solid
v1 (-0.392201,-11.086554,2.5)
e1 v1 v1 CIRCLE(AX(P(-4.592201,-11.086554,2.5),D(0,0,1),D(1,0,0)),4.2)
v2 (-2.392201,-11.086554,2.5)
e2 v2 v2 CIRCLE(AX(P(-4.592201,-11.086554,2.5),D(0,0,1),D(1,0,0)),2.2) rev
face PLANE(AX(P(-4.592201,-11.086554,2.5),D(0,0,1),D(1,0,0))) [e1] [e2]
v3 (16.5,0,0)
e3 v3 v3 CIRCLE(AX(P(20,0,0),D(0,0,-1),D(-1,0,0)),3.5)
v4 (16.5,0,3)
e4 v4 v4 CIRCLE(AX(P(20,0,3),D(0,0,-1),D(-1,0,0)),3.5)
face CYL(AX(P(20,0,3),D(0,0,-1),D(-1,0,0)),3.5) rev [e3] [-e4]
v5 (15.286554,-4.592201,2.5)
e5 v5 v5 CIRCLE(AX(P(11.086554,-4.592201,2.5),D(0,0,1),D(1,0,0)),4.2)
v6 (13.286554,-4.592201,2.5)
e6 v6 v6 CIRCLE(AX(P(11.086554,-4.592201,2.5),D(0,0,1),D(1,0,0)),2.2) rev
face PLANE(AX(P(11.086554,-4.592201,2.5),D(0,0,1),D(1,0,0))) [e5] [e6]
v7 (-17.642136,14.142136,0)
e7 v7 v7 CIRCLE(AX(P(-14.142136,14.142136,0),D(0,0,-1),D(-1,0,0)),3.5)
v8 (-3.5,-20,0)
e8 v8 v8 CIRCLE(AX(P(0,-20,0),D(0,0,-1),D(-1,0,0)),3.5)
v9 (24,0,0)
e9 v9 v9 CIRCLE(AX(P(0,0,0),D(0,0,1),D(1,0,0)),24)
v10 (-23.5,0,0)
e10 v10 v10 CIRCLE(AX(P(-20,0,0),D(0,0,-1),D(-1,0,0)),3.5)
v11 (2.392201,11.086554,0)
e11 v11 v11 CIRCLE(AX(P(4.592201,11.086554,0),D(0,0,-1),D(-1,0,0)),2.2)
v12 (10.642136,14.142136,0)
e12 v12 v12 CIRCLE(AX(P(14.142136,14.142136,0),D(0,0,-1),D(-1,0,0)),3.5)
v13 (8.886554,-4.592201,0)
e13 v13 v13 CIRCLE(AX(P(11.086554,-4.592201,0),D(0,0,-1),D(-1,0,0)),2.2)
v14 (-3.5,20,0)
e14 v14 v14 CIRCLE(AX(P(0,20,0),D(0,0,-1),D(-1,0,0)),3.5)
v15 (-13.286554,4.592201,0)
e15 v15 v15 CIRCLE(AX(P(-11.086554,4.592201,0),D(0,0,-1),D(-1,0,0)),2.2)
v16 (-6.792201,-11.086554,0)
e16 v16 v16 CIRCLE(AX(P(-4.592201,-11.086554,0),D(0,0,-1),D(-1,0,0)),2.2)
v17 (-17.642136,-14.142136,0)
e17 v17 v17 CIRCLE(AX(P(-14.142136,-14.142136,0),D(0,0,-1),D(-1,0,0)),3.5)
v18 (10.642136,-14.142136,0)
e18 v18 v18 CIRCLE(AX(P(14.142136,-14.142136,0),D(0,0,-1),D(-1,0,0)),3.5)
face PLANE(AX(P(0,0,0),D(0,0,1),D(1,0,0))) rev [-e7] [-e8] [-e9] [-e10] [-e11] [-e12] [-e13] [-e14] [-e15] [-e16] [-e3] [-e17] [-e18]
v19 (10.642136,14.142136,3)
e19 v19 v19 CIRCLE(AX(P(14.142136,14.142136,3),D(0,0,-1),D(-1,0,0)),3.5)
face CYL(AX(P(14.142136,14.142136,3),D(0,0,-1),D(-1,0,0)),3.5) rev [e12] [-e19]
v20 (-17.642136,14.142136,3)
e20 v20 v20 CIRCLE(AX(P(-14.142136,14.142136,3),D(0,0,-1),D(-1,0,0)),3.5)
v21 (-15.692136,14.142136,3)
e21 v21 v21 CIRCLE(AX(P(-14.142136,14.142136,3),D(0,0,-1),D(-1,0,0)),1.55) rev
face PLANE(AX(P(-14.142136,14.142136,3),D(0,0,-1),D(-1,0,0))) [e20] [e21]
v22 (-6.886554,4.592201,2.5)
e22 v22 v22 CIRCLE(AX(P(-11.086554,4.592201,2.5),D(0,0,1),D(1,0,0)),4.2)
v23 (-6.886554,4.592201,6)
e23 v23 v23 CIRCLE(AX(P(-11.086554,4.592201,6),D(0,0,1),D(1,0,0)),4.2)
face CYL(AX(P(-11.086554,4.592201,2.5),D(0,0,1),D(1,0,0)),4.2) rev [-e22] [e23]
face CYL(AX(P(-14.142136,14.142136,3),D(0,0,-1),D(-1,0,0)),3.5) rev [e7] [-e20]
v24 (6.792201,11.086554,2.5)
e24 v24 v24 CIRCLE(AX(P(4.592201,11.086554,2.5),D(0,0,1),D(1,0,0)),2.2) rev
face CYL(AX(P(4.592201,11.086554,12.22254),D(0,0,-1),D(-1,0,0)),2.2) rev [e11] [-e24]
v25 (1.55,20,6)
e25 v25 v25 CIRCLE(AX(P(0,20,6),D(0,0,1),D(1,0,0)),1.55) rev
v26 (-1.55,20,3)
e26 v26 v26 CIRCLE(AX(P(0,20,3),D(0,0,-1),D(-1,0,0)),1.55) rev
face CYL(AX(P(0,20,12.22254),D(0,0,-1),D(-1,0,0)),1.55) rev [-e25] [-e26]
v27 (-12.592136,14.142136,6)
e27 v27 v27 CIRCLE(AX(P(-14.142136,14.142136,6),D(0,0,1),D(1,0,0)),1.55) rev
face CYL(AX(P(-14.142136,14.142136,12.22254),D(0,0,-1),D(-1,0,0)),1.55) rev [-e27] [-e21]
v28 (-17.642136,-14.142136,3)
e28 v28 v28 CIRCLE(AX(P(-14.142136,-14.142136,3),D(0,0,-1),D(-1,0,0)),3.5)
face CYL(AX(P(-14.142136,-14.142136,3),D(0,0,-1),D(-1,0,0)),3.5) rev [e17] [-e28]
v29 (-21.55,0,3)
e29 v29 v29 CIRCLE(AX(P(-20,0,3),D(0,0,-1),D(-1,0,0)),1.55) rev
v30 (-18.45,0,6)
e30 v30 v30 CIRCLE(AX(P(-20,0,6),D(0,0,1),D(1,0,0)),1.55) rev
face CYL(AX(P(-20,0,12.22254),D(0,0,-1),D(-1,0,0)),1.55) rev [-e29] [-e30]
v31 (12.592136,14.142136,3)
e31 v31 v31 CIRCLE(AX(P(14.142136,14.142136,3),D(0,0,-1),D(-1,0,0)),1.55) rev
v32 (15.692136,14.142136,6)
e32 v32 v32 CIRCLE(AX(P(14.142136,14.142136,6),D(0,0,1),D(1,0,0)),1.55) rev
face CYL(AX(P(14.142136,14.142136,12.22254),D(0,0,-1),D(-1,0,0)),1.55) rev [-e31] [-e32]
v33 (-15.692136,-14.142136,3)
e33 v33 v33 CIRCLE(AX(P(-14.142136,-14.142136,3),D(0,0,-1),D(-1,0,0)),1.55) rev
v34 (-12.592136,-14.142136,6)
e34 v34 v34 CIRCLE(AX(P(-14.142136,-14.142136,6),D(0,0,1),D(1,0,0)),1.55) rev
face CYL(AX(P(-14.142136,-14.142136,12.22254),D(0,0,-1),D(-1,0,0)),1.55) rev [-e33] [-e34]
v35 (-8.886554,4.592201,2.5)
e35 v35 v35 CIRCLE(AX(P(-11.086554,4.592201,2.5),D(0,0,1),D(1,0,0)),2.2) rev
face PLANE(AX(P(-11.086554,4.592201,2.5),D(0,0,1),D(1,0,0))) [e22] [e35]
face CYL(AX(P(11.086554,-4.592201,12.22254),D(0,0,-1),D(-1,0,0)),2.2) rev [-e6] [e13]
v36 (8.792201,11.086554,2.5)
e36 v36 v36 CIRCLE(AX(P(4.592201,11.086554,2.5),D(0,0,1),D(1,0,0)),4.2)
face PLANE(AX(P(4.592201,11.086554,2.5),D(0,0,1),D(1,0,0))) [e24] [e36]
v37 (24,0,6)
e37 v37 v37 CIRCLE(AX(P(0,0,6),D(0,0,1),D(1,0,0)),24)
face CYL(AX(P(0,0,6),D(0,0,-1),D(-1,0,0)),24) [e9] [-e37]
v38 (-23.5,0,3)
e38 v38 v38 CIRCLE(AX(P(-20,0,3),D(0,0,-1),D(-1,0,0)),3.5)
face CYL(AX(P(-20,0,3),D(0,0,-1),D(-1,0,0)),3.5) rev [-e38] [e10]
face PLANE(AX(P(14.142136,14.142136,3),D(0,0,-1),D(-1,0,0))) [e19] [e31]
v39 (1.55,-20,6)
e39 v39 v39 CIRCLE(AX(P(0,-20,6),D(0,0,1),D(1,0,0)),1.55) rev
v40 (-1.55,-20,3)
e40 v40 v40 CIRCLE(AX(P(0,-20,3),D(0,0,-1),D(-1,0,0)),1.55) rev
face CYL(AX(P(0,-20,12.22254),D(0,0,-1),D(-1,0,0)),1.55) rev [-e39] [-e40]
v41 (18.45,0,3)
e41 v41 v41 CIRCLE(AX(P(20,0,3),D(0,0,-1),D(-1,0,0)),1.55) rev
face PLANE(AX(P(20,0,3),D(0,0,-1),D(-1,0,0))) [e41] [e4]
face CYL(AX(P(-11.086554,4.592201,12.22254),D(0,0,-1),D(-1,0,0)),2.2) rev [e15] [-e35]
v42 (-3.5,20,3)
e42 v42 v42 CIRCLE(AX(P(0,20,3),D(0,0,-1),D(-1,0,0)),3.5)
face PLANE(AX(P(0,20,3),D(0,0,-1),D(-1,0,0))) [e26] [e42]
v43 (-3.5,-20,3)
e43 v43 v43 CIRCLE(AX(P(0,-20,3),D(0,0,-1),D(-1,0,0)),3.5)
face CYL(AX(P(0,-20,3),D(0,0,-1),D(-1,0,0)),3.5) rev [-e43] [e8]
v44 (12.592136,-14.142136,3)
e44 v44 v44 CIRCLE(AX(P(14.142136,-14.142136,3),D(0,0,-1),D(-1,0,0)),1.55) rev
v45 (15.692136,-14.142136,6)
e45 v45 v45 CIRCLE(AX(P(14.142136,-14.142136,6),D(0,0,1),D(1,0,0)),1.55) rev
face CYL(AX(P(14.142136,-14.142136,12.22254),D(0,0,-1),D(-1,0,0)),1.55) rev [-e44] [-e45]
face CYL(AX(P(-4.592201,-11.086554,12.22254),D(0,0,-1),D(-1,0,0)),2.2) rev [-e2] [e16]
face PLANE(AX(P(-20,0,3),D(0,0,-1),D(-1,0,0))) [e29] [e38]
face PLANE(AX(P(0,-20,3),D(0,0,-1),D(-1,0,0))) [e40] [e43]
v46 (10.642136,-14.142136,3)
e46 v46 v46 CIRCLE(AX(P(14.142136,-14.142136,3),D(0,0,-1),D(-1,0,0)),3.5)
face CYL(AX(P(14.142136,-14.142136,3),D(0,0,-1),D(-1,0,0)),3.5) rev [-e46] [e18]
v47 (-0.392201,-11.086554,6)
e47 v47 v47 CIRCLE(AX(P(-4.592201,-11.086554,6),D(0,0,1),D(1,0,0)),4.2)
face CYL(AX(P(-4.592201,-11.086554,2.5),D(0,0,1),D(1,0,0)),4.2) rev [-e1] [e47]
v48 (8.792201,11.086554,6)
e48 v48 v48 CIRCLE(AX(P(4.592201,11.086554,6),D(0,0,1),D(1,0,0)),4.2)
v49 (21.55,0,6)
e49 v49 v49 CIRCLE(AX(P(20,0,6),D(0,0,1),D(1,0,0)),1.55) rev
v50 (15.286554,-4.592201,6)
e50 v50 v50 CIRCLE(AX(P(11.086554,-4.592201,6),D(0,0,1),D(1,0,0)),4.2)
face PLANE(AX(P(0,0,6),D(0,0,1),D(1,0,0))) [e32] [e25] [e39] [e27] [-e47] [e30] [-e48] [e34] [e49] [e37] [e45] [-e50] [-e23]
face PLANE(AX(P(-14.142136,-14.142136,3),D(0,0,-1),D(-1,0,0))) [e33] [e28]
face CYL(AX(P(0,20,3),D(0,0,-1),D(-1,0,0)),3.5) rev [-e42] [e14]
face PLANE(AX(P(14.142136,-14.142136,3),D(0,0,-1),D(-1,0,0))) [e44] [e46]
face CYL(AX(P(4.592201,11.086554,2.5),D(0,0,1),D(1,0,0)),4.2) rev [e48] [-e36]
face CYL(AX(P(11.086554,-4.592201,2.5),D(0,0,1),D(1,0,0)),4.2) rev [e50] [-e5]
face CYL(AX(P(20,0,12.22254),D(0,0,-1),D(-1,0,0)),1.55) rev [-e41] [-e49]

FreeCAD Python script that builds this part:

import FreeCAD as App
import Part
import Sketcher

V = App.Vector

doc = App.newDocument("Part")
body = doc.addObject("PartDesign::Body", "Body")

sketch1 = body.newObject("Sketcher::SketchObject", "Sketch")
sketch1.AttachmentSupport = (doc.getObject("XY_Plane"), [""])
sketch1.MapMode = "FlatFace"
sketch1.addGeometry(Part.Circle(V(0, 0, 0), V(0, 0, 1), 24), False)
sketch1.addConstraint([
    Sketcher.Constraint("Coincident", 0, 3, -1, 1),
    Sketcher.Constraint("Diameter", 0, 48.0),
])
pad1 = body.newObject("PartDesign::Pad", "Pad")
pad1.Profile = sketch1
pad1.Length = 6

sketch2 = body.newObject("Sketcher::SketchObject", "Sketch001")
sketch2.AttachmentSupport = (doc.getObject("XY_Plane"), [""])
sketch2.MapMode = "FlatFace"
sketch2.addGeometry([
    Part.Circle(V(0, 20, 0), V(0, 0, 1), 1.55),
    Part.Circle(V(-14.142136, 14.142136, 0), V(0, 0, 1), 1.55),
    Part.Circle(V(-20, 0, 0), V(0, 0, 1), 1.55),
    Part.Circle(V(-14.142136, -14.142136, 0), V(0, 0, 1), 1.55),
    Part.Circle(V(0, -20, 0), V(0, 0, 1), 1.55),
    Part.Circle(V(14.142136, -14.142136, 0), V(0, 0, 1), 1.55),
    Part.Circle(V(20, 0, 0), V(0, 0, 1), 1.55),
    Part.Circle(V(14.142136, 14.142136, 0), V(0, 0, 1), 1.55),
    Part.Circle(V(-11.086554, 4.592201, 0), V(0, 0, 1), 2.2),
    Part.Circle(V(-4.592201, -11.086554, 0), V(0, 0, 1), 2.2),
    Part.Circle(V(11.086554, -4.592201, 0), V(0, 0, 1), 2.2),
    Part.Circle(V(4.592201, 11.086554, 0), V(0, 0, 1), 2.2),
], False)
sketch2.addConstraint([
    Sketcher.Constraint("Equal", 0, 1),
    Sketcher.Constraint("Equal", 1, 2),
    Sketcher.Constraint("Equal", 2, 3),
    Sketcher.Constraint("Equal", 3, 4),
    Sketcher.Constraint("Equal", 4, 5),
    Sketcher.Constraint("Equal", 5, 6),
    Sketcher.Constraint("Equal", 6, 7),
    Sketcher.Constraint("Equal", 8, 9),
    Sketcher.Constraint("Equal", 9, 10),
    Sketcher.Constraint("Equal", 10, 11),
    Sketcher.Constraint("Symmetric", 0, 3, 4, 3, -1, 1),
    Sketcher.Constraint("Symmetric", 1, 3, 5, 3, -1, 1),
    Sketcher.Constraint("Symmetric", 2, 3, 6, 3, -1, 1),
    Sketcher.Constraint("Symmetric", 3, 3, 7, 3, -1, 1),
    Sketcher.Constraint("Symmetric", 8, 3, 10, 3, -1, 1),
    Sketcher.Constraint("Symmetric", 9, 3, 11, 3, -1, 1),
    Sketcher.Constraint("Symmetric", 3, 3, 5, 3, -2),
    Sketcher.Constraint("PointOnObject", 0, 3, -2),
    Sketcher.Constraint("PointOnObject", 2, 3, -1),
    Sketcher.Constraint("Diameter", 0, 3.1),
    Sketcher.Constraint("Diameter", 8, 4.4),
    Sketcher.Constraint("DistanceY", -1, 1, 0, 3, 20.0),
    Sketcher.Constraint("DistanceX", 2, 3, -1, 1, 20.0),
    Sketcher.Constraint("DistanceY", -1, 1, 8, 3, 4.592201),
    Sketcher.Constraint("DistanceX", 9, 3, -1, 1, 4.592201),
    Sketcher.Constraint("DistanceY", 3, 3, 1, 3, 28.284271),
    Sketcher.Constraint("DistanceX", 3, 3, 5, 3, 28.284271),
    Sketcher.Constraint("DistanceX", 1, 3, 8, 3, 3.055581),
    Sketcher.Constraint("DistanceY", 3, 3, 9, 3, 3.055581),
])
pocket1 = body.newObject("PartDesign::Pocket", "Pocket")
pocket1.Profile = sketch2
pocket1.Length = 6
pocket1.Reversed = True

sketch3 = body.newObject("Sketcher::SketchObject", "Sketch002")
sketch3.AttachmentSupport = (doc.getObject("XY_Plane"), [""])
sketch3.MapMode = "FlatFace"
sketch3.AttachmentOffset = App.Placement(V(0, 0, 6), App.Rotation())
sketch3.addGeometry([
    Part.Circle(V(-11.086554, 4.592201, 0), V(0, 0, 1), 4.2),
    Part.Circle(V(4.592201, 11.086554, 0), V(0, 0, 1), 4.2),
    Part.Circle(V(11.086554, -4.592201, 0), V(0, 0, 1), 4.2),
    Part.Circle(V(-4.592201, -11.086554, 0), V(0, 0, 1), 4.2),
], False)
sketch3.addConstraint([
    Sketcher.Constraint("Equal", 0, 1),
    Sketcher.Constraint("Equal", 1, 2),
    Sketcher.Constraint("Equal", 2, 3),
    Sketcher.Constraint("Symmetric", 0, 3, 2, 3, -1, 1),
    Sketcher.Constraint("Symmetric", 1, 3, 3, 3, -1, 1),
    Sketcher.Constraint("Diameter", 0, 8.4),
    Sketcher.Constraint("DistanceY", -1, 1, 0, 3, 4.592201),
    Sketcher.Constraint("DistanceX", -1, 1, 1, 3, 4.592201),
    Sketcher.Constraint("DistanceX", 0, 3, 2, 3, 22.173109),
    Sketcher.Constraint("DistanceY", 3, 3, 1, 3, 22.173109),
])
pocket2 = body.newObject("PartDesign::Pocket", "Pocket001")
pocket2.Profile = sketch3
pocket2.Length = 3.5

sketch4 = body.newObject("Sketcher::SketchObject", "Sketch003")
sketch4.AttachmentSupport = (doc.getObject("XY_Plane"), [""])
sketch4.MapMode = "FlatFace"
sketch4.addGeometry([
    Part.Circle(V(0, 20, 0), V(0, 0, 1), 3.5),
    Part.Circle(V(-14.142136, 14.142136, 0), V(0, 0, 1), 3.5),
    Part.Circle(V(-20, 0, 0), V(0, 0, 1), 3.5),
    Part.Circle(V(-14.142136, -14.142136, 0), V(0, 0, 1), 3.5),
    Part.Circle(V(0, -20, 0), V(0, 0, 1), 3.5),
    Part.Circle(V(14.142136, -14.142136, 0), V(0, 0, 1), 3.5),
    Part.Circle(V(20, 0, 0), V(0, 0, 1), 3.5),
    Part.Circle(V(14.142136, 14.142136, 0), V(0, 0, 1), 3.5),
], False)
sketch4.addConstraint([
    Sketcher.Constraint("Equal", 0, 1),
    Sketcher.Constraint("Equal", 1, 2),
    Sketcher.Constraint("Equal", 2, 3),
    Sketcher.Constraint("Equal", 3, 4),
    Sketcher.Constraint("Equal", 4, 5),
    Sketcher.Constraint("Equal", 5, 6),
    Sketcher.Constraint("Equal", 6, 7),
    Sketcher.Constraint("Symmetric", 0, 3, 4, 3, -1, 1),
    Sketcher.Constraint("Symmetric", 1, 3, 5, 3, -1, 1),
    Sketcher.Constraint("Symmetric", 2, 3, 6, 3, -1, 1),
    Sketcher.Constraint("Symmetric", 3, 3, 7, 3, -1, 1),
    Sketcher.Constraint("Symmetric", 3, 3, 5, 3, -2),
    Sketcher.Constraint("PointOnObject", 0, 3, -2),
    Sketcher.Constraint("PointOnObject", 2, 3, -1),
    Sketcher.Constraint("Diameter", 0, 7.0),
    Sketcher.Constraint("DistanceY", -1, 1, 0, 3, 20.0),
    Sketcher.Constraint("DistanceX", 2, 3, -1, 1, 20.0),
    Sketcher.Constraint("DistanceY", 3, 3, 1, 3, 28.284271),
    Sketcher.Constraint("DistanceX", 3, 3, 5, 3, 28.284271),
])
pocket3 = body.newObject("PartDesign::Pocket", "Pocket002")
pocket3.Profile = sketch4
pocket3.Length = 3
pocket3.Reversed = True

doc.recompute()
